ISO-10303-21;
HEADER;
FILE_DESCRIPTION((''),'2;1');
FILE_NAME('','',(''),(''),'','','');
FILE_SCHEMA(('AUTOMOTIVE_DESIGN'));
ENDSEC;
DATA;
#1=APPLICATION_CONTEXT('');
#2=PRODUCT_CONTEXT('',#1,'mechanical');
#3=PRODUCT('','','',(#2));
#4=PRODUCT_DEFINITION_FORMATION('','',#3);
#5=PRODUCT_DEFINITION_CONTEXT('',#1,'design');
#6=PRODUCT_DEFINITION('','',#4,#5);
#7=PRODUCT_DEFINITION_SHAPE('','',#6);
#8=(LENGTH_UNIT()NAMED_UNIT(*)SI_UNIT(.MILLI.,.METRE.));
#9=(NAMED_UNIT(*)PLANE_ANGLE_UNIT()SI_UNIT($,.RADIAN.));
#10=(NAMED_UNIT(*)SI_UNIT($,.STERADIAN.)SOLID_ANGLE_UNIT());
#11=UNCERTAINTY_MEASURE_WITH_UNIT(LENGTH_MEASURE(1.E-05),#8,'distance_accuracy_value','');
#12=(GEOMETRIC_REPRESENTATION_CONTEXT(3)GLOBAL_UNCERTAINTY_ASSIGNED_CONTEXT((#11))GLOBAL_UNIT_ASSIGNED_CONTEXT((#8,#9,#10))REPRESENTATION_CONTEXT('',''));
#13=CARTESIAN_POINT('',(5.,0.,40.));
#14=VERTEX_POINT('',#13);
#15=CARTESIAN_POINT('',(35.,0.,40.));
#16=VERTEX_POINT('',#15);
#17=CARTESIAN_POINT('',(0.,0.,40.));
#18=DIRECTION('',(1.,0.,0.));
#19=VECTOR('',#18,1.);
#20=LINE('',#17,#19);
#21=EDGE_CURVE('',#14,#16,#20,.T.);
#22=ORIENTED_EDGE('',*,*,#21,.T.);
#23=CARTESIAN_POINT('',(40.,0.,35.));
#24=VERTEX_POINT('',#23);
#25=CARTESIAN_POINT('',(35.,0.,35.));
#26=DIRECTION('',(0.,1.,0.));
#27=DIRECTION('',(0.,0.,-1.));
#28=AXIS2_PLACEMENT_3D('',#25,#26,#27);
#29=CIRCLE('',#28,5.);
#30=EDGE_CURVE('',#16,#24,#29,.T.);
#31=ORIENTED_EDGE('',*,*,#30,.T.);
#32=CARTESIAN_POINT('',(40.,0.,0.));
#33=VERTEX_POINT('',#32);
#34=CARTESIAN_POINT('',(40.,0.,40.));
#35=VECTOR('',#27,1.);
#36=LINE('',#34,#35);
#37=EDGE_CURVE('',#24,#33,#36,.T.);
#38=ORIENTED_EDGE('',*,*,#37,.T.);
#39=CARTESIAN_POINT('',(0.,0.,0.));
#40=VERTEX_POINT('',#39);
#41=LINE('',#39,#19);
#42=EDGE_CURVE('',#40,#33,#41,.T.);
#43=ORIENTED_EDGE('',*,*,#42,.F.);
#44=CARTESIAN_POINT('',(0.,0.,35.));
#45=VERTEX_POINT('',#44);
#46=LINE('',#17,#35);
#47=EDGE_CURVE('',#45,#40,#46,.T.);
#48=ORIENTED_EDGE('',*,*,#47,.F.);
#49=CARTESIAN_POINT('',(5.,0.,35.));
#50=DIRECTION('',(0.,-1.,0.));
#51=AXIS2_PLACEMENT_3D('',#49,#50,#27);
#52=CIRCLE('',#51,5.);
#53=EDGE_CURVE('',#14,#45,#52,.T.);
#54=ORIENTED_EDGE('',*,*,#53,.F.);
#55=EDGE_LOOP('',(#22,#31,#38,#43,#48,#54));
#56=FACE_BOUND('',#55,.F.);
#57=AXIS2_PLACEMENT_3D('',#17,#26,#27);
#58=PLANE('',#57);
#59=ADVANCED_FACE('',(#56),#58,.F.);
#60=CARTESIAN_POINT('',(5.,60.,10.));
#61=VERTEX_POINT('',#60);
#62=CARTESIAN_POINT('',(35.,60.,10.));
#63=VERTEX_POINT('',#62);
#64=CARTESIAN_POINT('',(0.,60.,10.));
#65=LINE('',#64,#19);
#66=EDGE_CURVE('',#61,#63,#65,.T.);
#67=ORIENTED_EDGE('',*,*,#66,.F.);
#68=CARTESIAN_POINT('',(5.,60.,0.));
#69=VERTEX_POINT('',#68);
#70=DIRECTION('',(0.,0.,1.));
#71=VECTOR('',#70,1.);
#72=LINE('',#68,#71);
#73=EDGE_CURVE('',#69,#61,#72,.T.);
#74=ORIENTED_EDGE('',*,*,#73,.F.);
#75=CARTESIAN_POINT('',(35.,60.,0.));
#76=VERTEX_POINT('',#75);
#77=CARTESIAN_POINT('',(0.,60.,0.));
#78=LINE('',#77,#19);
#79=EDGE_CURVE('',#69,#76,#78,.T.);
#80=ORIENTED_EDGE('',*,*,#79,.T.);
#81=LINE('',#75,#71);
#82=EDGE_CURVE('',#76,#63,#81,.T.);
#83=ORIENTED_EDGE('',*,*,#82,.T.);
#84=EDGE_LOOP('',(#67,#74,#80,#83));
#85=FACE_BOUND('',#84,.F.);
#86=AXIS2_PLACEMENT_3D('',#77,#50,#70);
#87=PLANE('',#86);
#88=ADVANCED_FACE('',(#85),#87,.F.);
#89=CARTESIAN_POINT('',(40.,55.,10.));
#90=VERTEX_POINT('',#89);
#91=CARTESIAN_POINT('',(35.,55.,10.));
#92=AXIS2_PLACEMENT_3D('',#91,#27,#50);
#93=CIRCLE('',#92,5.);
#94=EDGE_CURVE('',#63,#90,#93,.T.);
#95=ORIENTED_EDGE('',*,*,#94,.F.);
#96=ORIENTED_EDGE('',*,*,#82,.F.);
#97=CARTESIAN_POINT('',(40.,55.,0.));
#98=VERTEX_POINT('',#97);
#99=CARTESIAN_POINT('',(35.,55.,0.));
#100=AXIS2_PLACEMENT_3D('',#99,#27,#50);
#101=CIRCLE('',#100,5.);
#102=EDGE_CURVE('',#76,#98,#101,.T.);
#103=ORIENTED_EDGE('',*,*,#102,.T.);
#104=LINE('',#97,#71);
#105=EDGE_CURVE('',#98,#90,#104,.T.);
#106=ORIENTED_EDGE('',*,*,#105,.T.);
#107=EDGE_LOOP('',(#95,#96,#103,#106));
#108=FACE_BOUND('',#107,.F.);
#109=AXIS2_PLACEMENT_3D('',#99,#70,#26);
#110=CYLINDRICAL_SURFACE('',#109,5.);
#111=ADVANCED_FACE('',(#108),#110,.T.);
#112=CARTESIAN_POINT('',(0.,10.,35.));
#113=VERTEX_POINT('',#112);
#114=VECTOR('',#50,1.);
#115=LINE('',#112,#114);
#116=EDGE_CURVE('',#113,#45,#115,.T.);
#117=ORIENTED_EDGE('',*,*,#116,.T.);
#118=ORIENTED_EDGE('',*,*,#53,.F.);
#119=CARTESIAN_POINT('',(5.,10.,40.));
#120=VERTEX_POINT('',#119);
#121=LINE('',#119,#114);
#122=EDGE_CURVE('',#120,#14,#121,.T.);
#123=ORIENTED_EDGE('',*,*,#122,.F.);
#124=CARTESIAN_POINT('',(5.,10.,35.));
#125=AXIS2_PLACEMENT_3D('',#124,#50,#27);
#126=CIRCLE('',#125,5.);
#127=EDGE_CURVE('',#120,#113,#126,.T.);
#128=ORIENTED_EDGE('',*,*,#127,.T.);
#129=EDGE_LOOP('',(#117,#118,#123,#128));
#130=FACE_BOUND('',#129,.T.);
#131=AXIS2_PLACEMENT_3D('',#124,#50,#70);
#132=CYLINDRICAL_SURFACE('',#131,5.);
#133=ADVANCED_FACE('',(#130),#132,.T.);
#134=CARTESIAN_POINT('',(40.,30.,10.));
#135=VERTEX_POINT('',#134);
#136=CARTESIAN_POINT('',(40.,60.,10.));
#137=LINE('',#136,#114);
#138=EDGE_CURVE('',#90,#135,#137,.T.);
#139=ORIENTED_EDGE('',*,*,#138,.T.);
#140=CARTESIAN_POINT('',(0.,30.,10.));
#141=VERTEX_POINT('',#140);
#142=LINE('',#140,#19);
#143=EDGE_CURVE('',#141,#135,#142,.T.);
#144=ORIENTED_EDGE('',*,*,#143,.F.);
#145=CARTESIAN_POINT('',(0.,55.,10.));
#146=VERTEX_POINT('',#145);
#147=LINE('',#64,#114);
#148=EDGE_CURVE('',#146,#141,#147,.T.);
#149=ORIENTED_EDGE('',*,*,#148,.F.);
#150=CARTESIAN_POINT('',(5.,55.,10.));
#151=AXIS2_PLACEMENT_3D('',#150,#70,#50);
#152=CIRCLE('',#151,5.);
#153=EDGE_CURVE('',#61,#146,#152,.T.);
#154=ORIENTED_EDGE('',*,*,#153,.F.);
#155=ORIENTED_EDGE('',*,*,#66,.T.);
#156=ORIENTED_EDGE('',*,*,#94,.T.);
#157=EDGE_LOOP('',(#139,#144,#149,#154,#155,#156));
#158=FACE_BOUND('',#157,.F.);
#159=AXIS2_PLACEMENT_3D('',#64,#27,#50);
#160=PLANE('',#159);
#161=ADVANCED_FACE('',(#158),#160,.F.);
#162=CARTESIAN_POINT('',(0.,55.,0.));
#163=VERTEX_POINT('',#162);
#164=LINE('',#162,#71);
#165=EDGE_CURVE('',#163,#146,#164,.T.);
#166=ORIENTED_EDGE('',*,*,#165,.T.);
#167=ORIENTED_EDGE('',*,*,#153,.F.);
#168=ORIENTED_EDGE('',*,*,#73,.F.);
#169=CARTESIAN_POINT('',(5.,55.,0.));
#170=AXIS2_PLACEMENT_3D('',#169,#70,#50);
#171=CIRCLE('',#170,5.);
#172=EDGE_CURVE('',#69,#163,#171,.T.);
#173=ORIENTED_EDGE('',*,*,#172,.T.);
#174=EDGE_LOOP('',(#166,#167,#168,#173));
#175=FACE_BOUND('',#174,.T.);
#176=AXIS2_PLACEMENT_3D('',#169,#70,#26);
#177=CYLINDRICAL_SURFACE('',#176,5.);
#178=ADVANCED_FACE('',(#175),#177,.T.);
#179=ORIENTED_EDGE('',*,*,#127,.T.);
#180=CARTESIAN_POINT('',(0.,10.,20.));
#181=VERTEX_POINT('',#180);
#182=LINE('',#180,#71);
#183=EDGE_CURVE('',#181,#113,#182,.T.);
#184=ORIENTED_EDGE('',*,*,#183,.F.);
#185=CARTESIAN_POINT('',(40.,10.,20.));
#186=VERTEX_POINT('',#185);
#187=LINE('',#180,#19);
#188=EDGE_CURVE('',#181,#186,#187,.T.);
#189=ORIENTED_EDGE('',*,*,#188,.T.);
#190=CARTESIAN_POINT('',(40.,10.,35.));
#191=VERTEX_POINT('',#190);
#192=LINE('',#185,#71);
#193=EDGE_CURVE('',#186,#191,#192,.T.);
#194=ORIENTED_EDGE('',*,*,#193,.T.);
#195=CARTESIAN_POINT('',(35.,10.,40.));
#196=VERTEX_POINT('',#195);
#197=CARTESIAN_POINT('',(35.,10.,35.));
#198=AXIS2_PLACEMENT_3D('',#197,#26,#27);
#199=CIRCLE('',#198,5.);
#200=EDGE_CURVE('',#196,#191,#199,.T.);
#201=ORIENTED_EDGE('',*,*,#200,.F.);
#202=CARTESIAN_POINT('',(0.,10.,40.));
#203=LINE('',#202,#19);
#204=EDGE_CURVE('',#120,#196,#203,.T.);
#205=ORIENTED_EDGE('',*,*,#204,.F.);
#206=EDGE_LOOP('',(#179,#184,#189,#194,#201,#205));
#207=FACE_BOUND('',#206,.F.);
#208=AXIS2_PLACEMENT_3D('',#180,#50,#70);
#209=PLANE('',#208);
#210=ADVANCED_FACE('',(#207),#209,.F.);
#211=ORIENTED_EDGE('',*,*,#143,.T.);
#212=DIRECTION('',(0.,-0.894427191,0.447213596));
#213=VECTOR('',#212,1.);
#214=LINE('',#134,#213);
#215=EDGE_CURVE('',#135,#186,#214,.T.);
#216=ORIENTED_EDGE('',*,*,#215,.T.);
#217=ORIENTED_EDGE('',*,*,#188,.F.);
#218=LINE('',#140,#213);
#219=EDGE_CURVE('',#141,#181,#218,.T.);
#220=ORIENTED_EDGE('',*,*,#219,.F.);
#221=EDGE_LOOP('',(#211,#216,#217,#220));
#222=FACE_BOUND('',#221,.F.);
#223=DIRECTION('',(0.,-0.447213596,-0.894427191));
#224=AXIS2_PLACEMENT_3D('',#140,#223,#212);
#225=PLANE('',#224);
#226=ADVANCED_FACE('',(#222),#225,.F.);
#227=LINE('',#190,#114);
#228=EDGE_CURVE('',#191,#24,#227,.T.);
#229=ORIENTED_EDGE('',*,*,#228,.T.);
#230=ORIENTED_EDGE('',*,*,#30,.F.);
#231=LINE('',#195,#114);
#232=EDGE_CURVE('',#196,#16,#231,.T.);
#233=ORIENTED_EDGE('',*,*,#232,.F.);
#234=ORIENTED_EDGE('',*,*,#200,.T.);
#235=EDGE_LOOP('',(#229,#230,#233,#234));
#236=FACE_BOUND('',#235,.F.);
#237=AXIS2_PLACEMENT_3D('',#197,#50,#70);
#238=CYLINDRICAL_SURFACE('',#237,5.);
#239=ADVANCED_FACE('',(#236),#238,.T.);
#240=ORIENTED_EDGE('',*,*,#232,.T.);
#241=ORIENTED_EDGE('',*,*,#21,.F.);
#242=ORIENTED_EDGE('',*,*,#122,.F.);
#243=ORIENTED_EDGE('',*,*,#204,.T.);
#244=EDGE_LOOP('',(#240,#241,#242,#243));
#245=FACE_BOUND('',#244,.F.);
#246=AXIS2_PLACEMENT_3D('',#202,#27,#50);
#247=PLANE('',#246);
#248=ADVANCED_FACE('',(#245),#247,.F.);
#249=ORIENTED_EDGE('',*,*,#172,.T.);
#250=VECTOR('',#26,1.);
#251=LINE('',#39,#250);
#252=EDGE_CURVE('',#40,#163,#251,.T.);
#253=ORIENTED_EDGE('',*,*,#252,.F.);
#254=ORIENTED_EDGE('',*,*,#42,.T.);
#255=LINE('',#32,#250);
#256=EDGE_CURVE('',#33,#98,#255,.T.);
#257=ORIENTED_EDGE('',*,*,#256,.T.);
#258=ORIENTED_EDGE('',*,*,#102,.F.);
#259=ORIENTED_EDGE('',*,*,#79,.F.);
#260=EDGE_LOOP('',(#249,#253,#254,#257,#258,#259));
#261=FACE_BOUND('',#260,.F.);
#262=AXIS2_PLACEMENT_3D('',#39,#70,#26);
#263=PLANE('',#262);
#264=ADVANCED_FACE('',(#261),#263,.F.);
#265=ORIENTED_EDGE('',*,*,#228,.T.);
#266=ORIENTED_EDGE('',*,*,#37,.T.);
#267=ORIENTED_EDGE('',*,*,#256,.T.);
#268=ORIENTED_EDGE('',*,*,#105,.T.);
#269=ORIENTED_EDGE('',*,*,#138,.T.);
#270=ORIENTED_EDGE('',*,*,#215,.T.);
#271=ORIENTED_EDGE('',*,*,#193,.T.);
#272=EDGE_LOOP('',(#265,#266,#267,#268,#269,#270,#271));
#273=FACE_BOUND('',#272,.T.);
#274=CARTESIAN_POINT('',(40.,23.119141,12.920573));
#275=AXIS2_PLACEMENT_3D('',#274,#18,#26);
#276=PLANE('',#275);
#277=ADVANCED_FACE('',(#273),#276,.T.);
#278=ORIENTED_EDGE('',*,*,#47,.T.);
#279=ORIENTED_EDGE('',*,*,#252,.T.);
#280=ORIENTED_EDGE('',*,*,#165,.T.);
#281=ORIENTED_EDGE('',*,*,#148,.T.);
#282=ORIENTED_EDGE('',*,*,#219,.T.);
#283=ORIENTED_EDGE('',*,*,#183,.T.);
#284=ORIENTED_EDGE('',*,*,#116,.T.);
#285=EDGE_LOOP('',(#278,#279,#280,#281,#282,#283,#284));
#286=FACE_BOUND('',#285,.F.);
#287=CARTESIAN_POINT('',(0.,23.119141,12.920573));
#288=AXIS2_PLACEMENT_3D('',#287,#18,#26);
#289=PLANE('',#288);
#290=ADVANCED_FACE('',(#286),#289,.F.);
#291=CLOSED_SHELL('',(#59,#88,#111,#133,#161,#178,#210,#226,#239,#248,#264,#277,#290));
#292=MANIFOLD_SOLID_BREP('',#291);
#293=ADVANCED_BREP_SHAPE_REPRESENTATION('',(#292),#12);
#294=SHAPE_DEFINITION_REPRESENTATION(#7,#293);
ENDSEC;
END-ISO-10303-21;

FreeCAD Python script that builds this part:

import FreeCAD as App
import Part
import Sketcher

V = App.Vector
Q = App.Units.Quantity


def edges_at(feature, points):
    """Names of the edges that pass closest to the given points."""
    edges = feature.Shape.Edges
    near = lambda p: min(range(len(edges)), key=lambda i: edges[i].distToShape(Part.Vertex(*p))[0])
    return sorted({f"Edge{near(p) + 1}" for p in points})

doc = App.newDocument("Part")
body = doc.addObject("PartDesign::Body", "Body")

# Sketch on YZ plane
sketch1 = doc.addObject("Sketcher::SketchObject", "Sketch")
body.addObject(sketch1)
sketch1.AttachmentSupport = (doc.YZ_Plane, [""])
sketch1.MapMode = "FlatFace"
sketch1.addGeometry([
    Part.LineSegment(V(0, 40, 0), V(0, 0, 0)),  # 0
    Part.LineSegment(V(0, 0, 0), V(60, 0, 0)),  # 1
    Part.LineSegment(V(60, 0, 0), V(60, 10, 0)),  # 2
    Part.LineSegment(V(60, 10, 0), V(30, 10, 0)),  # 3
    Part.LineSegment(V(30, 10, 0), V(10, 20, 0)),  # 4
    Part.LineSegment(V(10, 20, 0), V(10, 40, 0)),  # 5
    Part.LineSegment(V(10, 40, 0), V(0, 40, 0)),  # 6
], False)
sketch1.addConstraint([
    Sketcher.Constraint("Coincident", 0, 2, 1, 1),
    Sketcher.Constraint("Coincident", 1, 2, 2, 1),
    Sketcher.Constraint("Coincident", 2, 2, 3, 1),
    Sketcher.Constraint("Coincident", 3, 2, 4, 1),
    Sketcher.Constraint("Coincident", 4, 2, 5, 1),
    Sketcher.Constraint("Coincident", 5, 2, 6, 1),
    Sketcher.Constraint("Coincident", 6, 2, 0, 1),
    Sketcher.Constraint("Vertical", 0),
    Sketcher.Constraint("Horizontal", 1),
    Sketcher.Constraint("Vertical", 2),
    Sketcher.Constraint("Horizontal", 3),
    Sketcher.Constraint("Vertical", 5),
    Sketcher.Constraint("Horizontal", 6),
    Sketcher.Constraint("Coincident", 0, 2, -1, 1),
    Sketcher.Constraint("Equal", 6, 2),
    Sketcher.Constraint("DistanceX", 1, 1, 1, 2, Q("60 mm")),
    Sketcher.Constraint("DistanceX", 3, 2, 3, 1, Q("30 mm")),
    Sketcher.Constraint("DistanceX", 6, 2, 6, 1, Q("10 mm")),
    Sketcher.Constraint("DistanceY", 0, 2, 0, 1, Q("40 mm")),
    Sketcher.Constraint("DistanceY", 5, 1, 5, 2, Q("20 mm")),
])
pad1 = doc.addObject("PartDesign::Pad", "Pad")
body.addObject(pad1)
pad1.Profile = sketch1
pad1.Length = 40
doc.recompute()

fillet = doc.addObject("PartDesign::Fillet", "Fillet")
body.addObject(fillet)
fillet.Base = (pad1, edges_at(pad1, [
    (40, 5, 40),
    (0, 5, 40),
    (40, 60, 5),
    (0, 60, 5),
]))
fillet.Radius = 5

doc.recompute()
